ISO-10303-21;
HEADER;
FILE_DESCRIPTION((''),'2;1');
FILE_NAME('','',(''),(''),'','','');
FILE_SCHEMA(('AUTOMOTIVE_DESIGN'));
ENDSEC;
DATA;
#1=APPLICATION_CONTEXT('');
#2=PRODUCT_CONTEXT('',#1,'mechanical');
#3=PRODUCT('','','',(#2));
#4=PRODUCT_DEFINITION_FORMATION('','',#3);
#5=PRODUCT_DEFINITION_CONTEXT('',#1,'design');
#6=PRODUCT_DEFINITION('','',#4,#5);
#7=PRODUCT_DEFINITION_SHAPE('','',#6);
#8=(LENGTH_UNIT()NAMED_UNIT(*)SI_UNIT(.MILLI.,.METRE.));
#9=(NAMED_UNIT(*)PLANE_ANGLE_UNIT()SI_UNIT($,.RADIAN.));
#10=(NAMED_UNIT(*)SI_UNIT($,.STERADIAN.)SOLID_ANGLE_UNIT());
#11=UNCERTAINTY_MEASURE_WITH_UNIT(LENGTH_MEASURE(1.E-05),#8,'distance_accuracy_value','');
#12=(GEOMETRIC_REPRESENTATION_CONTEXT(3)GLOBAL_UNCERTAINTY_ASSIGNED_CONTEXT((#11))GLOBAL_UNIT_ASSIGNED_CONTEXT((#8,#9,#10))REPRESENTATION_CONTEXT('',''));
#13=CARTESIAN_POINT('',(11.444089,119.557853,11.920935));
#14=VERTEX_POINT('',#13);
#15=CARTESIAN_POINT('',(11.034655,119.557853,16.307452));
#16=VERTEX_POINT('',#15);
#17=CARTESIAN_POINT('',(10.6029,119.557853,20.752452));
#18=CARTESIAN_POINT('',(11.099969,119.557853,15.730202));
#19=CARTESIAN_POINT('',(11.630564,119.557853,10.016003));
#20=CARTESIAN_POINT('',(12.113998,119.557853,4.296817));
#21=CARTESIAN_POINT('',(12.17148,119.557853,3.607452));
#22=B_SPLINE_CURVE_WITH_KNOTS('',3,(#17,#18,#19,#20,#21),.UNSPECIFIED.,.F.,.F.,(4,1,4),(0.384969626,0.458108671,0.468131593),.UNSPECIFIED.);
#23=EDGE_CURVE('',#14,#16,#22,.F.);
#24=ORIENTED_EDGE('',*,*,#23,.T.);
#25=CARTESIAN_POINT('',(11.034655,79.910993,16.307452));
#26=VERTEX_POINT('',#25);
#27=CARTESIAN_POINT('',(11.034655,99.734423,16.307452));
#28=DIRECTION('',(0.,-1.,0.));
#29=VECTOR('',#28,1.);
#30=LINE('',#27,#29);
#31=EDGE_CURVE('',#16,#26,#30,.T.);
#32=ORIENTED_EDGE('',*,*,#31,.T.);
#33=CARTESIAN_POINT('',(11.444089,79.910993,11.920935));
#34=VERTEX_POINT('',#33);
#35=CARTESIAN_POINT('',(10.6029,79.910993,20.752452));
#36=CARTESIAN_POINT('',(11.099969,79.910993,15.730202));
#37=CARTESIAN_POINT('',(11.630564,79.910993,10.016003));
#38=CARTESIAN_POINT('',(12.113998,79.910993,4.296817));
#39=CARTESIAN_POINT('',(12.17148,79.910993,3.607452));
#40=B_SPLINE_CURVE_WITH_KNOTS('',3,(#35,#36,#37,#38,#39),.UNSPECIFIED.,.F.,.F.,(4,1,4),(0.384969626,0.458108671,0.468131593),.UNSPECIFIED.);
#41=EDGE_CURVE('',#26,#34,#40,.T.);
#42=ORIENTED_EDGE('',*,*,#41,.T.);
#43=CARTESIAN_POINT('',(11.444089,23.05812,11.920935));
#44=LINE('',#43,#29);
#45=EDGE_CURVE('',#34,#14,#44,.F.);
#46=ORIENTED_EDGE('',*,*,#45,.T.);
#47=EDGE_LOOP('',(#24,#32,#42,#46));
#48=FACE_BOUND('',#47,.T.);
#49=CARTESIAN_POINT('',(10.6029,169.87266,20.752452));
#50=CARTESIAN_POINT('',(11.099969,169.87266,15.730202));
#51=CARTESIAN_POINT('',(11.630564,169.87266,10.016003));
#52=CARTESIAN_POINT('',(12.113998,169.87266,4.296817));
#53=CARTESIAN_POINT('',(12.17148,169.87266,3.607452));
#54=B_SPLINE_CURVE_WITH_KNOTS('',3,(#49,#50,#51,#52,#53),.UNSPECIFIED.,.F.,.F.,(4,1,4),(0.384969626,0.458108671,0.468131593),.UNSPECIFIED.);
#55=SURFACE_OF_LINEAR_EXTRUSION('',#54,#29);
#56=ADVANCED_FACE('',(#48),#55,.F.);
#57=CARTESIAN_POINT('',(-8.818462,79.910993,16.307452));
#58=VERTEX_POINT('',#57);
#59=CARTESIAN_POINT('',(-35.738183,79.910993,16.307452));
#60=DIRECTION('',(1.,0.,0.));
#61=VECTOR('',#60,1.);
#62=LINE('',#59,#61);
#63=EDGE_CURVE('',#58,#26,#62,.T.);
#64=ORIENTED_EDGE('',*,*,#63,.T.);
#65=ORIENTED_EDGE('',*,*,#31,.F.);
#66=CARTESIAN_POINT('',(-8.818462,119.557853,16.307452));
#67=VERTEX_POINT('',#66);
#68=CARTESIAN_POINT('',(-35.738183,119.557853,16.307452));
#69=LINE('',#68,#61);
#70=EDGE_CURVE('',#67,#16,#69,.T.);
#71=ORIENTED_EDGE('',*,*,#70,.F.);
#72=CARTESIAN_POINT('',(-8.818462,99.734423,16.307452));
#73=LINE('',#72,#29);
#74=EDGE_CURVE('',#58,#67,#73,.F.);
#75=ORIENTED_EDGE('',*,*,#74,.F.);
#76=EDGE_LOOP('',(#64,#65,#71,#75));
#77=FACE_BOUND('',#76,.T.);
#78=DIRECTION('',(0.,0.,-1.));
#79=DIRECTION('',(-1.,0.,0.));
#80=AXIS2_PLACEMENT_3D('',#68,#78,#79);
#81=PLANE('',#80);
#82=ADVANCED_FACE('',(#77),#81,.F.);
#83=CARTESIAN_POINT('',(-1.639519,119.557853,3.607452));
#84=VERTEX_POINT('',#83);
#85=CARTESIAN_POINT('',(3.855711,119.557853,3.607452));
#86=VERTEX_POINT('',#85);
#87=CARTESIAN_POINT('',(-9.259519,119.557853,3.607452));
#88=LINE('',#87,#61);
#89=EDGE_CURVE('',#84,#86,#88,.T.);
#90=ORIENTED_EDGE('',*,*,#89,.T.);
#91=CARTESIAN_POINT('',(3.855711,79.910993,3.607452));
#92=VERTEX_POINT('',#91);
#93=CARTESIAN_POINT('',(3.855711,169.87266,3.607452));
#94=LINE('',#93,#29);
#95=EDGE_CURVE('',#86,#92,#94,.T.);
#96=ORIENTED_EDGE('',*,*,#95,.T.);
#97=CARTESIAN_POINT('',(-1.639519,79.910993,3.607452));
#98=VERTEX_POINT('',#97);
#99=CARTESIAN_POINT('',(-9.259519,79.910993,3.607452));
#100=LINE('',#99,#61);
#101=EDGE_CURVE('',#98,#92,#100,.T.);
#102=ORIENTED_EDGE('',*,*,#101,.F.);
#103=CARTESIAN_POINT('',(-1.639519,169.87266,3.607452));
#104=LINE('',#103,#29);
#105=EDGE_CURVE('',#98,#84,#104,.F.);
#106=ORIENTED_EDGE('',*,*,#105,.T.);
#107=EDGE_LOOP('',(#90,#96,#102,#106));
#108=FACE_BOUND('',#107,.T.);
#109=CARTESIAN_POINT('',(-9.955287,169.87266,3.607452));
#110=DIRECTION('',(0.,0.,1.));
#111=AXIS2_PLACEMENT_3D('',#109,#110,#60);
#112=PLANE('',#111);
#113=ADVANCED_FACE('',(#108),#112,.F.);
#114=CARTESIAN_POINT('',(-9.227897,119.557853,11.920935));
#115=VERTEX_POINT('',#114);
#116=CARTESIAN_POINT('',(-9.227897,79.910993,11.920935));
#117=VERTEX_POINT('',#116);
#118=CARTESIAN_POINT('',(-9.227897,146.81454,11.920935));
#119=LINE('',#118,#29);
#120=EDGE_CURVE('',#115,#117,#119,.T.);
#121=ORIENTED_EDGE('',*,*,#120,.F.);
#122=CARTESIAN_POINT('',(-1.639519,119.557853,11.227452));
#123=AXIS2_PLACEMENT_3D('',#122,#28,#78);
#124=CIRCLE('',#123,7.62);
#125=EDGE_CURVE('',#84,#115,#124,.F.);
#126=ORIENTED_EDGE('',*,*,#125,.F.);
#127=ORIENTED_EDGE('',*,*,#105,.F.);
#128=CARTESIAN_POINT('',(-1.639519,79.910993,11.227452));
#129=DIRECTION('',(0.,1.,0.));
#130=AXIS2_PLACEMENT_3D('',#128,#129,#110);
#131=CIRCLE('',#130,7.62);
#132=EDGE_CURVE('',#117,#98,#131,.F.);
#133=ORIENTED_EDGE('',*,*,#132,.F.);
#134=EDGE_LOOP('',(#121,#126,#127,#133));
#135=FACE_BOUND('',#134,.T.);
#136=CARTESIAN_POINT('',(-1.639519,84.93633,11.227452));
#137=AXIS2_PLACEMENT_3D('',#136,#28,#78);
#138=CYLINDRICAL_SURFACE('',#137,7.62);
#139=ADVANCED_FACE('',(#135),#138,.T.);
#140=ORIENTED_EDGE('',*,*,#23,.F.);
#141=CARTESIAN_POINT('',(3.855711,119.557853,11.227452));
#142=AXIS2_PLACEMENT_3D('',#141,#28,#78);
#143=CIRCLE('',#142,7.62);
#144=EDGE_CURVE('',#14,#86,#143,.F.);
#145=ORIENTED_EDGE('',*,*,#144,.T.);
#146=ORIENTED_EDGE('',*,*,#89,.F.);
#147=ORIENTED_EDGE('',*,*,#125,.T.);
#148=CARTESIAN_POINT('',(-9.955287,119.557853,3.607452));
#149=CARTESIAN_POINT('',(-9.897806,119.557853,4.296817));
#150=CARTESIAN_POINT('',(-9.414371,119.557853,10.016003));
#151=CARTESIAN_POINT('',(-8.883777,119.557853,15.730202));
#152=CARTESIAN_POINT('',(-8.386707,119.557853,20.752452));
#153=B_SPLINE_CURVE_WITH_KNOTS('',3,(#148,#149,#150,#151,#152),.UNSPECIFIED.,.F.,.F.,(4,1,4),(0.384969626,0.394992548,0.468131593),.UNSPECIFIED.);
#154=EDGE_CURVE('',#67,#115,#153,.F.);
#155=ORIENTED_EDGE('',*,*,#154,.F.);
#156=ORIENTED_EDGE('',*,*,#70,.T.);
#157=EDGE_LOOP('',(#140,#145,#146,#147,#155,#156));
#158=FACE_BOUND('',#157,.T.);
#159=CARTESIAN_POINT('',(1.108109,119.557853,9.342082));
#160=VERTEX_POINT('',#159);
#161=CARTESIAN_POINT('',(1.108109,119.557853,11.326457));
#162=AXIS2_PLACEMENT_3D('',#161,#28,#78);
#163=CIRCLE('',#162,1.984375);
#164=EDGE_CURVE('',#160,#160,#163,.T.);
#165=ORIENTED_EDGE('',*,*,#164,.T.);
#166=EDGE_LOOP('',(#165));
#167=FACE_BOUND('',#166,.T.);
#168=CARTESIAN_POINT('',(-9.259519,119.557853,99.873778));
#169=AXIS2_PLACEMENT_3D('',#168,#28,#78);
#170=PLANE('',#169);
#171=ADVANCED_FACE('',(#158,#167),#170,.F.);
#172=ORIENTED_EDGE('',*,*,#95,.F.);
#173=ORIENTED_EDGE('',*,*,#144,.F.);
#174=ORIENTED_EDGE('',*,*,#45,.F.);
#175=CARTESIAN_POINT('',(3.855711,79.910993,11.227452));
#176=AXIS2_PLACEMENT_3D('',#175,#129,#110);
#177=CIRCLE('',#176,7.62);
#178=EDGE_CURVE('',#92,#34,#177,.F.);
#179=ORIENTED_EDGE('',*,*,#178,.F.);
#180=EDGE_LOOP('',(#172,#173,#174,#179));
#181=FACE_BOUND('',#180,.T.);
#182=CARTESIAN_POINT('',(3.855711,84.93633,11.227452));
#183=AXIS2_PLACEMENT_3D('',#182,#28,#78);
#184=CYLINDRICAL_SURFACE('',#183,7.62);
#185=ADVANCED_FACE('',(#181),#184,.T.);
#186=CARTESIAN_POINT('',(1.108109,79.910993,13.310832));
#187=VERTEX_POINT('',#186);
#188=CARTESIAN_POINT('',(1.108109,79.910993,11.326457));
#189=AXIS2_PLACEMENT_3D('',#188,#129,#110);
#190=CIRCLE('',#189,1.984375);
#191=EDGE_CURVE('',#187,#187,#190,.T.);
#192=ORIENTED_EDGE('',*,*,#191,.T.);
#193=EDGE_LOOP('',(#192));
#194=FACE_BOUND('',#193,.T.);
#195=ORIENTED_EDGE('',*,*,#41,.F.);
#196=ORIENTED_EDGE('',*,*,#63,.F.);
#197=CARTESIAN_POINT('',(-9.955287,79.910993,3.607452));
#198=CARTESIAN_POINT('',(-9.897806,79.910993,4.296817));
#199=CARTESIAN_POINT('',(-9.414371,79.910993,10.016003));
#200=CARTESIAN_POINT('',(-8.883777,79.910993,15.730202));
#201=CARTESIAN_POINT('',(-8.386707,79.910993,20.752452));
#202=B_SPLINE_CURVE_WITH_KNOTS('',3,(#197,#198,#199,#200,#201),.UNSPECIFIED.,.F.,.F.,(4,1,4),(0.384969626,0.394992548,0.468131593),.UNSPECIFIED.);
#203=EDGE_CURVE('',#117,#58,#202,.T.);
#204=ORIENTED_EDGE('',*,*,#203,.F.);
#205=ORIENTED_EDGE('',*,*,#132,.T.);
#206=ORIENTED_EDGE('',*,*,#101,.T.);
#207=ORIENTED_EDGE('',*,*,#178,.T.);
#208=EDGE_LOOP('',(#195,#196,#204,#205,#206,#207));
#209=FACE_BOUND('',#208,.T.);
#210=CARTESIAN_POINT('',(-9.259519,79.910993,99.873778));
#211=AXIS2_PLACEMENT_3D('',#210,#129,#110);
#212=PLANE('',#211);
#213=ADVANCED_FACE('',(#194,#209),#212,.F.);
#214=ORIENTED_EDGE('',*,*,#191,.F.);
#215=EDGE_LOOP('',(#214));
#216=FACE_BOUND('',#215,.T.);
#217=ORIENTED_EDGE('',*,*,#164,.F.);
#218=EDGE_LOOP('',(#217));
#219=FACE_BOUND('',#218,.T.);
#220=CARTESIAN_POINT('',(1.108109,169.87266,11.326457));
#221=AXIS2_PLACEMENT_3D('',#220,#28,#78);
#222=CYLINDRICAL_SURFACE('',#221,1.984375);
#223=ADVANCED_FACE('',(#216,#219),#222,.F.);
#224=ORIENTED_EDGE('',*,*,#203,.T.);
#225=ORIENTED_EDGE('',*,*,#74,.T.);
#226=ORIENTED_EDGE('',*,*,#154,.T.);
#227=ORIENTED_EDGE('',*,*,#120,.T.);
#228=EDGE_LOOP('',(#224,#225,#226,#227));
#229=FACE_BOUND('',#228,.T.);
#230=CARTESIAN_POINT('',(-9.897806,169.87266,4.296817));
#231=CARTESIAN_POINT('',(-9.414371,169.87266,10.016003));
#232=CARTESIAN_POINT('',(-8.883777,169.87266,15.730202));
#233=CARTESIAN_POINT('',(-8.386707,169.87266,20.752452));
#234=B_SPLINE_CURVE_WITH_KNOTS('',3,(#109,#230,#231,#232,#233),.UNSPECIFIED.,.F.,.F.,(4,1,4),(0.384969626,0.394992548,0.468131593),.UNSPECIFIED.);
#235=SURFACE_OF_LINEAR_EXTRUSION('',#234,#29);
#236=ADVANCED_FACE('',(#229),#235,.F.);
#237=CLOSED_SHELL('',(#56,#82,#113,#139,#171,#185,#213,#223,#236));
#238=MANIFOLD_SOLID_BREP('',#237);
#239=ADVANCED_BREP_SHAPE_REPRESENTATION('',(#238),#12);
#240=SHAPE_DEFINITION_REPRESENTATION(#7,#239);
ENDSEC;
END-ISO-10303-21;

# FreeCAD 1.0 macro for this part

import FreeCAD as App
import Part
import Sketcher

V = App.Vector
Q = App.Units.Quantity


def edges_at(feature, points):
    """Names of the edges that pass closest to the given points."""
    edges = feature.Shape.Edges
    near = lambda p: min(range(len(edges)), key=lambda i: edges[i].distToShape(Part.Vertex(*p))[0])
    return sorted({f"Edge{near(p) + 1}" for p in points})

doc = App.newDocument("Part")
body = doc.addObject("PartDesign::Body", "Body")

sketch1 = body.newObject("Sketcher::SketchObject", "Sketch")
sketch1.AttachmentSupport = (doc.getObject("XZ_Plane"), [""])
sketch1.MapMode = "FlatFace"
sketch1.addGeometry([
    Part.LineSegment(V(12.17148, 3.607452, 0), V(-9.955287, 3.607452, 0)),
    Part.BSplineCurve([V(1.108096, 99.873778, 0), V(-2.960764, 68.527136, 0), V(-7.176479, 36.491002, 0), V(-9.897806, 4.296817, 0), V(-9.955287, 3.607452, 0)], [4, 1, 4], [0, 0.458108671, 0.468131593], False, 3, [1, 1, 1, 1, 1], False),
    Part.BSplineCurve([V(1.108096, 99.873778, 0), V(5.176956, 68.527136, 0), V(9.392672, 36.491002, 0), V(12.113998, 4.296817, 0), V(12.17148, 3.607452, 0)], [4, 1, 4], [0, 0.458108671, 0.468131593], False, 3, [1, 1, 1, 1, 1], False),
    Part.Circle(V(1.108109, 11.326457, 0), V(0, 0, 1), 1.984375),
], False)
sketch1.addConstraint([
    Sketcher.Constraint("Block", 1),
    Sketcher.Constraint("Block", 2),
    Sketcher.Constraint("Coincident", 0, 2, 1, 2),
    Sketcher.Constraint("Coincident", 2, 2, 0, 1),
    Sketcher.Constraint("Diameter", 3, Q("0.15625 in")),
    Sketcher.Constraint("DistanceX", -1, 1, 3, 3, 1.108109),
    Sketcher.Constraint("DistanceY", -1, 1, 3, 3, 11.326457),
])
pad1 = body.newObject("PartDesign::Pad", "Pad")
pad1.Profile = sketch1
pad1.Length = Q("6.6879 in")
pad1.Reversed = True

sketch2 = body.newObject("Sketcher::SketchObject", "Sketch001")
sketch2.AttachmentSupport = (doc.getObject("XZ_Plane"), [""])
sketch2.MapMode = "FlatFace"
sketch2.AttachmentOffset = App.Placement(V(0, 0, -6.6879 * 25.4), App.Rotation())
sketch2.addGeometry([
    Part.LineSegment(V(26, 4, 0), V(-10, 4, 0)),
    Part.LineSegment(V(-10, 4, 0), V(-10, 26, 0)),
    Part.LineSegment(V(-10, 26, 0), V(26, 26, 0)),
    Part.LineSegment(V(26, 26, 0), V(26, 4, 0)),
], False)
sketch2.addConstraint([
    Sketcher.Constraint("Coincident", 0, 2, 1, 1),
    Sketcher.Constraint("Coincident", 1, 2, 2, 1),
    Sketcher.Constraint("Coincident", 2, 2, 3, 1),
    Sketcher.Constraint("Coincident", 3, 2, 0, 1),
    Sketcher.Constraint("Horizontal", 0),
    Sketcher.Constraint("Vertical", 1),
    Sketcher.Constraint("Horizontal", 2),
    Sketcher.Constraint("Vertical", 3),
    Sketcher.Constraint("DistanceX", 0, 2, 0, 1, 35.763807),
    Sketcher.Constraint("DistanceY", 1, 1, 1, 2, 22.705005),
    Sketcher.Constraint("DistanceY", -1, 1, 0, 2, 3.607452),
    Sketcher.Constraint("DistanceX", -1, 1, 2, 2, 25.80852),
])
pocket1 = body.newObject("PartDesign::Pocket", "Pocket")
pocket1.Profile = sketch2
pocket1.Length = Q("0.9078 in")
pocket1.Reversed = True

sketch3 = body.newObject("Sketcher::SketchObject", "Sketch002")
sketch3.AttachmentSupport = (doc.getObject("XZ_Plane"), [""])
sketch3.MapMode = "FlatFace"
sketch3.addGeometry([
    Part.LineSegment(V(26, 4, 0), V(-10, 4, 0)),
    Part.LineSegment(V(-10, 4, 0), V(-10, 26, 0)),
    Part.LineSegment(V(-10, 26, 0), V(26, 26, 0)),
    Part.LineSegment(V(26, 26, 0), V(26, 4, 0)),
], False)
sketch3.addConstraint([
    Sketcher.Constraint("Coincident", 0, 2, 1, 1),
    Sketcher.Constraint("Coincident", 1, 2, 2, 1),
    Sketcher.Constraint("Coincident", 2, 2, 3, 1),
    Sketcher.Constraint("Coincident", 3, 2, 0, 1),
    Sketcher.Constraint("Horizontal", 0),
    Sketcher.Constraint("Vertical", 1),
    Sketcher.Constraint("Horizontal", 2),
    Sketcher.Constraint("Vertical", 3),
    Sketcher.Constraint("DistanceX", 0, 2, 0, 1, 35.763807),
    Sketcher.Constraint("DistanceY", 1, 1, 1, 2, 22.705005),
    Sketcher.Constraint("DistanceY", -1, 1, 0, 2, 3.607452),
    Sketcher.Constraint("DistanceX", -1, 1, 2, 2, 25.80852),
])
pocket2 = body.newObject("PartDesign::Pocket", "Pocket001")
pocket2.Profile = sketch3
pocket2.Length = Q("0.9078 in")
doc.recompute()

fillet = body.newObject("PartDesign::Fillet", "Fillet")
fillet.Base = (pocket2, edges_at(pocket2, [
    (-7.824, 11.529, 26.312),
    (10.04, 11.529, 26.312),
    (-9.955, 84.936, 3.607),
    (12.171, 84.936, 3.607),
    (-7.824, 158.344, 26.312),
    (10.04, 158.344, 26.312),
]))
fillet.Radius = Q("0.3 in")

sketch4 = body.newObject("Sketcher::SketchObject", "Sketch003")
sketch4.AttachmentSupport = (doc.getObject("XZ_Plane"), [""])
sketch4.MapMode = "FlatFace"
sketch4.addGeometry([
    Part.Circle(V(1.1, 71.9, 0), V(0, 0, 1), 2.1),
    Part.Circle(V(1.1, 34.8, 0), V(0, 0, 1), 2.1),
], False)
sketch4.addConstraint([
    Sketcher.Constraint("Equal", 0, 1),
    Sketcher.Constraint("Vertical", 0, 3, 1, 3),
    Sketcher.Constraint("Diameter", 0, 4.2),
    Sketcher.Constraint("DistanceY", -1, 1, 0, 3, 71.933778),
    Sketcher.Constraint("DistanceX", -1, 1, 0, 3, 1.108096),
    Sketcher.Constraint("DistanceY", -1, 1, 1, 3, 34.760552),
])
pocket3 = body.newObject("PartDesign::Pocket", "Pocket002")
pocket3.Profile = sketch4
pocket3.Type = "ThroughAll"
pocket3.Midplane = True

sketch5 = body.newObject("Sketcher::SketchObject", "Sketch004")
sketch5.AttachmentSupport = (doc.getObject("YZ_Plane"), [""])
sketch5.MapMode = "FlatFace"
sketch5.addGeometry([
    Part.LineSegment(V(80, 100, 0), V(0, 100, 0)),
    Part.LineSegment(V(0, 100, 0), V(0, 4, 0)),
    Part.LineSegment(V(0, 4, 0), V(80, 4, 0)),
    Part.LineSegment(V(80, 4, 0), V(80, 100, 0)),
    Part.LineSegment(V(170, 100, 0), V(120, 100, 0)),
    Part.LineSegment(V(120, 100, 0), V(120, 4, 0)),
    Part.LineSegment(V(120, 4, 0), V(170, 4, 0)),
    Part.LineSegment(V(170, 4, 0), V(170, 100, 0)),
], False)
sketch5.addConstraint([
    Sketcher.Constraint("Coincident", 0, 2, 1, 1),
    Sketcher.Constraint("Coincident", 1, 2, 2, 1),
    Sketcher.Constraint("Coincident", 2, 2, 3, 1),
    Sketcher.Constraint("Coincident", 3, 2, 0, 1),
    Sketcher.Constraint("Coincident", 4, 2, 5, 1),
    Sketcher.Constraint("Coincident", 5, 2, 6, 1),
    Sketcher.Constraint("Coincident", 6, 2, 7, 1),
    Sketcher.Constraint("Coincident", 7, 2, 4, 1),
    Sketcher.Constraint("Horizontal", 0),
    Sketcher.Constraint("Vertical", 1),
    Sketcher.Constraint("Horizontal", 2),
    Sketcher.Constraint("Vertical", 3),
    Sketcher.Constraint("Horizontal", 4),
    Sketcher.Constraint("Vertical", 5),
    Sketcher.Constraint("Horizontal", 6),
    Sketcher.Constraint("Vertical", 7),
    Sketcher.Constraint("PointOnObject", 0, 2, -2),
    Sketcher.Constraint("Horizontal", 3, 2, 4, 2),
    Sketcher.Constraint("Horizontal", 2, 2, 5, 2),
    Sketcher.Constraint("DistanceX", -1, 1, 6, 2, Q("6.6879 in")),
    Sketcher.Constraint("DistanceX", 3, 2, 4, 2, Q("1.5609 in")),
    Sketcher.Constraint("DistanceX", 0, 2, 0, 1, 79.910993),
    Sketcher.Constraint("DistanceY", 1, 2, 1, 1, 96.266327),
    Sketcher.Constraint("DistanceY", -1, 1, 0, 2, 99.873778),
])
pocket4 = body.newObject("PartDesign::Pocket", "Pocket003")
pocket4.Profile = sketch5
pocket4.Type = "ThroughAll"
pocket4.Midplane = True

sketch6 = body.newObject("Sketcher::SketchObject", "Sketch005")
sketch6.AttachmentSupport = (doc.getObject("XZ_Plane"), [""])
sketch6.MapMode = "FlatFace"
sketch6.AttachmentOffset = App.Placement(V(0, 0, -79.910993), App.Rotation())
sketch6.addGeometry([
    Part.LineSegment(V(32, 137, 0), V(-36, 137, 0)),
    Part.LineSegment(V(-36, 137, 0), V(-36, 16, 0)),
    Part.LineSegment(V(-36, 16, 0), V(32, 16, 0)),
    Part.LineSegment(V(32, 16, 0), V(32, 137, 0)),
], False)
sketch6.addConstraint([
    Sketcher.Constraint("Coincident", 0, 2, 1, 1),
    Sketcher.Constraint("Coincident", 1, 2, 2, 1),
    Sketcher.Constraint("Coincident", 2, 2, 3, 1),
    Sketcher.Constraint("Coincident", 3, 2, 0, 1),
    Sketcher.Constraint("Horizontal", 0),
    Sketcher.Constraint("Vertical", 1),
    Sketcher.Constraint("Horizontal", 2),
    Sketcher.Constraint("Vertical", 3),
    Sketcher.Constraint("DistanceX", 0, 2, 0, 1, 68.184354),
    Sketcher.Constraint("DistanceY", 1, 2, 1, 1, 120.299055),
    Sketcher.Constraint("DistanceY", -1, 1, 1, 2, 16.307452),
    Sketcher.Constraint("DistanceX", -1, 1, 2, 2, 32.446171),
])
pocket5 = body.newObject("PartDesign::Pocket", "Pocket004")
pocket5.Profile = sketch6
pocket5.Type = "ThroughAll"
pocket5.Midplane = True

doc.recompute()
